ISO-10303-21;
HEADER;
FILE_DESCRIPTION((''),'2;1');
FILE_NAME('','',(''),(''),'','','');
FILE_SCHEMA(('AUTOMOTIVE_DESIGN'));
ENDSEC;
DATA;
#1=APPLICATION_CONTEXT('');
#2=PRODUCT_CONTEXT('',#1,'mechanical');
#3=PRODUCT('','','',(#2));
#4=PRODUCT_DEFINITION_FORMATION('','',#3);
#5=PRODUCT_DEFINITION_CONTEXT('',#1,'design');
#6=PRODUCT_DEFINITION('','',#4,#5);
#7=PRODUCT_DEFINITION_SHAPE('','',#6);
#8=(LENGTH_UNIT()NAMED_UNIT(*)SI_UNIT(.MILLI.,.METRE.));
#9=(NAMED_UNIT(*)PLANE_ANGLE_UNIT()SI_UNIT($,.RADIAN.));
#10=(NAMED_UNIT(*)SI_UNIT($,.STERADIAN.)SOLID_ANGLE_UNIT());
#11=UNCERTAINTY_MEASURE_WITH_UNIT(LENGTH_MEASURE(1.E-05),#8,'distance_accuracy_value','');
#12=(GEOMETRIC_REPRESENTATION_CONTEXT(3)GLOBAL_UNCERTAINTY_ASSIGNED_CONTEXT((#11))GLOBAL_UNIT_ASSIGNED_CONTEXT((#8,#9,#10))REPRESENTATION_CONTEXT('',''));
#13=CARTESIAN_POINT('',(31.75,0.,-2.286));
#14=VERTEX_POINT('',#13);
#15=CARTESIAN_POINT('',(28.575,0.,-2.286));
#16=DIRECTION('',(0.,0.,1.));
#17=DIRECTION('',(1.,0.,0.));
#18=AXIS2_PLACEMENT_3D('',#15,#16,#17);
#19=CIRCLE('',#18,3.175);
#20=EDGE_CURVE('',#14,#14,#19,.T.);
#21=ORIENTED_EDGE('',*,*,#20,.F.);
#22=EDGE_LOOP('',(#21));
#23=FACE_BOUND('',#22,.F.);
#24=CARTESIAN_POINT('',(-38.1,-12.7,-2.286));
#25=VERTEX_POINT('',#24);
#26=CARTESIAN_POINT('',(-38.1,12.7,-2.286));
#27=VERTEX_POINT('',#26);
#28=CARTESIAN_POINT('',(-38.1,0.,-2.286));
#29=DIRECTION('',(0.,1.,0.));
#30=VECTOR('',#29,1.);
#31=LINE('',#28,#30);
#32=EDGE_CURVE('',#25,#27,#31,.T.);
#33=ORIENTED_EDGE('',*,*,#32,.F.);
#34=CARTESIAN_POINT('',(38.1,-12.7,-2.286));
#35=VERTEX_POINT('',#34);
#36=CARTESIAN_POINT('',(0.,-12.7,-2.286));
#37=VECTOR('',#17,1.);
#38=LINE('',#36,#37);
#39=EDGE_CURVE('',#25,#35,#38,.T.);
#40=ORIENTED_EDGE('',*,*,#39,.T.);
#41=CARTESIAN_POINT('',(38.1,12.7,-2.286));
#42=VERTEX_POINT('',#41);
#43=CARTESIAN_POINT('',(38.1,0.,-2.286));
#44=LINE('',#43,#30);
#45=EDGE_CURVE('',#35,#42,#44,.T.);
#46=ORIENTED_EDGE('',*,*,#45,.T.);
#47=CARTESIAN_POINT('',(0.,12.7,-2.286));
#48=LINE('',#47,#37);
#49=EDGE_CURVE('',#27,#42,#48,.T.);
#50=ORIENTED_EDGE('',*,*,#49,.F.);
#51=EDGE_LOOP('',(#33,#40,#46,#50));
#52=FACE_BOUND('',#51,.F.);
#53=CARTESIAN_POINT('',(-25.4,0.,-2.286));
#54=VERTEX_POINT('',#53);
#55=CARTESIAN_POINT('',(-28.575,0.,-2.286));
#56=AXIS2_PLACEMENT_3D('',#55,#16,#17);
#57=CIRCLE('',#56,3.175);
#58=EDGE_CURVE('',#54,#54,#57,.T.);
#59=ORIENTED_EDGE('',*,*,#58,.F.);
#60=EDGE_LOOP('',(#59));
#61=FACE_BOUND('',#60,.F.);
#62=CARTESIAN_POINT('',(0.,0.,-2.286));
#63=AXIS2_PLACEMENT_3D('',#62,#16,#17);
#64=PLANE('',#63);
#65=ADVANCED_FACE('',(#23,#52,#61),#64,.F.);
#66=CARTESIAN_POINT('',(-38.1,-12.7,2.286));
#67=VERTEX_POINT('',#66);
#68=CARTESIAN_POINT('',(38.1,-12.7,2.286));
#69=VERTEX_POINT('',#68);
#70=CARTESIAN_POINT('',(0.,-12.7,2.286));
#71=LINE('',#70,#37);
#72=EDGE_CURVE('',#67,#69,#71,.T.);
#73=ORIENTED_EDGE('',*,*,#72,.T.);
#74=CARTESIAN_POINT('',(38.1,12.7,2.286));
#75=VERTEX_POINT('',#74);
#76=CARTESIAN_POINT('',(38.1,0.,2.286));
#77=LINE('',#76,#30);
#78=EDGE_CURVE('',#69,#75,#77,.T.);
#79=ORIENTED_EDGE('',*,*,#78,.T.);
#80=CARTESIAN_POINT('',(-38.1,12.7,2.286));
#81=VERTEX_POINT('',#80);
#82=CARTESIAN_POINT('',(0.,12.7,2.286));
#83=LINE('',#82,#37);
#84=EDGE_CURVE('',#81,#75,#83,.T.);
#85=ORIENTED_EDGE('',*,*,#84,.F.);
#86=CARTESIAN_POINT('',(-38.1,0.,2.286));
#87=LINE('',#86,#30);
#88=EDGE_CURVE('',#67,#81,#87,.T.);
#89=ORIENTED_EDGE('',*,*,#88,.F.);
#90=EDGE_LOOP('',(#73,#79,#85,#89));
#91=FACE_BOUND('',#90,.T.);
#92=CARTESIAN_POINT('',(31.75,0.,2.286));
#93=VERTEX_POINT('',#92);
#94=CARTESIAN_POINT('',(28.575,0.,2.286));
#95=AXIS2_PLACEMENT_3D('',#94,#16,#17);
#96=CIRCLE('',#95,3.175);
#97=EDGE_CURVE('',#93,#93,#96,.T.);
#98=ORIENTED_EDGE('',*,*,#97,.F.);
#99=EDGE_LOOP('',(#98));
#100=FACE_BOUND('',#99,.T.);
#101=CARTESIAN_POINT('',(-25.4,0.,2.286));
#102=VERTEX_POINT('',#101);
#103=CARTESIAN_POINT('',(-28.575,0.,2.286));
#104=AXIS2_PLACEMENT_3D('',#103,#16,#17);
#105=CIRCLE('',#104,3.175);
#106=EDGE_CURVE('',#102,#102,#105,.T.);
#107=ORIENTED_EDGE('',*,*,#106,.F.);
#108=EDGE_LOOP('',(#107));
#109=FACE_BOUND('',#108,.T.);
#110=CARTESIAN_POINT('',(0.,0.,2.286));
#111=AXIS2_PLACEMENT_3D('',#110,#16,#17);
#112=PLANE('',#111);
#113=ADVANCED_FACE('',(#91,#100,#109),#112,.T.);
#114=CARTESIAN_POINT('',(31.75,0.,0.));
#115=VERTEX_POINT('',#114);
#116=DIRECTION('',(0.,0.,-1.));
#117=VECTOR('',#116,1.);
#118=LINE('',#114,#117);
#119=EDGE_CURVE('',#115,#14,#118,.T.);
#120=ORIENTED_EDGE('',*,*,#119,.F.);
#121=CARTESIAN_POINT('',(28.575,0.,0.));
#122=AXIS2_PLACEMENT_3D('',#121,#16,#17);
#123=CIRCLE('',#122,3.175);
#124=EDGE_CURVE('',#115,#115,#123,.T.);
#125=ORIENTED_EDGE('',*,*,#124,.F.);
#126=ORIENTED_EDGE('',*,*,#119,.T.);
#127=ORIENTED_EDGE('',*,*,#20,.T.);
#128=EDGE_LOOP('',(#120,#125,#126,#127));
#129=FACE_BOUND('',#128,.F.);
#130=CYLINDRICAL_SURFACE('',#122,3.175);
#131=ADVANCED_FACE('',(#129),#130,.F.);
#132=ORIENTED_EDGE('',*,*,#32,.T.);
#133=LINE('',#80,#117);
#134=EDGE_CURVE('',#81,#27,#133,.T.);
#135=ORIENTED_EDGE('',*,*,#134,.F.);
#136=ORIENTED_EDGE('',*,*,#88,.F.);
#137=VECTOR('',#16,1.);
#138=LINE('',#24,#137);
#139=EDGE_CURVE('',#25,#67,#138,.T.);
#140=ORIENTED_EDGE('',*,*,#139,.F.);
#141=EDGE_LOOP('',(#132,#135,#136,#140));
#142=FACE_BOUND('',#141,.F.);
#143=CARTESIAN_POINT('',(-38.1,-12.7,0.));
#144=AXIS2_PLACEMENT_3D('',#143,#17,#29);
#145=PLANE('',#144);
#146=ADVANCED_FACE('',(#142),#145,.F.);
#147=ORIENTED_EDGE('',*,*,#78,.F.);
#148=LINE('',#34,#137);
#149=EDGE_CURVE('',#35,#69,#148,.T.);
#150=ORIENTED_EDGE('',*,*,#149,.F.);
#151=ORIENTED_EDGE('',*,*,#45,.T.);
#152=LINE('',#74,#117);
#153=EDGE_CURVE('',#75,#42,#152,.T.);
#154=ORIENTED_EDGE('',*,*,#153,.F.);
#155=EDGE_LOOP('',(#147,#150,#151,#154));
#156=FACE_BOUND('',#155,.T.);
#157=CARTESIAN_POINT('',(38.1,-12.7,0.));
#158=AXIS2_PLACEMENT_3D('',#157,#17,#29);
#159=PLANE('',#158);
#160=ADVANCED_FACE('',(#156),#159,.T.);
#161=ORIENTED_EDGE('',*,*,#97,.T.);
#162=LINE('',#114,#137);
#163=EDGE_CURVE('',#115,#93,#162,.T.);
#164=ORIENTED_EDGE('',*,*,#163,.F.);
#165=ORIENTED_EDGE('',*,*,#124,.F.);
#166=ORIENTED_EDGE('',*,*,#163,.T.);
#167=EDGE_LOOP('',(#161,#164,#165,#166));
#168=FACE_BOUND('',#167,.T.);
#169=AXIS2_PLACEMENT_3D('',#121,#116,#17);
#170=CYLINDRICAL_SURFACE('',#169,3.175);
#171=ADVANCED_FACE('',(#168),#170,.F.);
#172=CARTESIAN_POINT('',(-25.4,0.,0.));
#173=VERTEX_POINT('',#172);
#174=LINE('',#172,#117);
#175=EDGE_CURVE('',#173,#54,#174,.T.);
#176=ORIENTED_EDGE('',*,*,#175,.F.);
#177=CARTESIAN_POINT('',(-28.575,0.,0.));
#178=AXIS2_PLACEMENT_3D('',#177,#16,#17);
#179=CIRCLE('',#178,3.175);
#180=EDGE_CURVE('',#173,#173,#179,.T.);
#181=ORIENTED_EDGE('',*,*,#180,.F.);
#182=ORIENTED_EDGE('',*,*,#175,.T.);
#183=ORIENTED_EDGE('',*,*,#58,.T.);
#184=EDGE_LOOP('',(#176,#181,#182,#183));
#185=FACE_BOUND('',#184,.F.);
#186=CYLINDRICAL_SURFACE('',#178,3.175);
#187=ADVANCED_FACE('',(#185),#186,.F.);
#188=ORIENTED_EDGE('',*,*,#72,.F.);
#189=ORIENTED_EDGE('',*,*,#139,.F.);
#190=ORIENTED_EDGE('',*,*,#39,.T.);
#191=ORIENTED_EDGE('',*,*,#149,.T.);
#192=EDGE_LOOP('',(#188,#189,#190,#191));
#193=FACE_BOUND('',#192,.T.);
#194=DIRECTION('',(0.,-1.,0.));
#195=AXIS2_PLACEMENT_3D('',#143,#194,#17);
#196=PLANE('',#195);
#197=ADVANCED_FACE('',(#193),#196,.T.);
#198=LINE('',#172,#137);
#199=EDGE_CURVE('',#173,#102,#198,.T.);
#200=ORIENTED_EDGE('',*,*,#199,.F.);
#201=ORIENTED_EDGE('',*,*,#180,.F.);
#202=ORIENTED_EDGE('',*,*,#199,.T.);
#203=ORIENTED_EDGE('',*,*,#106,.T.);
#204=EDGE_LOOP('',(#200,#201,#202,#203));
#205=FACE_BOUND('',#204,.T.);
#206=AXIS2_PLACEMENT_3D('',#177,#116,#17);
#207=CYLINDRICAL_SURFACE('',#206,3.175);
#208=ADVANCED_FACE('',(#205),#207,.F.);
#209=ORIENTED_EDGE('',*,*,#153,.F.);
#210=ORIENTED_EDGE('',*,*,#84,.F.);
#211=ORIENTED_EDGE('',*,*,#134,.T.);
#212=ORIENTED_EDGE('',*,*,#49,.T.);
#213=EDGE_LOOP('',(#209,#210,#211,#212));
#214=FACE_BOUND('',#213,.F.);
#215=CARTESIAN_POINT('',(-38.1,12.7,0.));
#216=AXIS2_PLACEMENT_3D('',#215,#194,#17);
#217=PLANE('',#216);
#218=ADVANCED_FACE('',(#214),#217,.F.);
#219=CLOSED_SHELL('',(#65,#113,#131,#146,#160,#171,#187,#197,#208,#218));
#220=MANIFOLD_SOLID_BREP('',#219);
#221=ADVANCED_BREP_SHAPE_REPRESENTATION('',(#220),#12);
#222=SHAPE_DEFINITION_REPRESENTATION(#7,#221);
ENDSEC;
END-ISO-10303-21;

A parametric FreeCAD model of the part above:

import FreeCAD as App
import Part
import Sketcher
from FreeCAD import Vector
Q = App.Units.Quantity


def add_polygon(sketch, points):
    """Adds a closed chain of lines whose ends are joined by coincident constraints."""
    first, n = sketch.GeometryCount, len(points)
    for a, b in zip(points, points[1:] + points[:1]):
        sketch.addGeometry(Part.LineSegment(App.Vector(*a, 0), App.Vector(*b, 0)), False)
    for i in range(n):
        sketch.addConstraint(Sketcher.Constraint("Coincident", first + i, 2, first + (i + 1) % n, 1))

doc = App.newDocument("Part")
body = doc.addObject("PartDesign::Body", "Body")

# Sketch on XY plane
sketch1 = doc.addObject("Sketcher::SketchObject", "Sketch")
body.addObject(sketch1)
sketch1.AttachmentSupport = (doc.XY_Plane, [""])
sketch1.MapMode = "FlatFace"
add_polygon(sketch1, [(-38.1, 12.7), (-38.1, -12.7), (38.1, -12.7), (38.1, 12.7)])  # lines 0-3
sketch1.addGeometry(Part.Circle(Vector(-28.575, 0, 0), Vector(0, 0, 1), 3.175), False)  # 4
sketch1.addGeometry(Part.Circle(Vector(28.575, 0, 0), Vector(0, 0, 1), 3.175), False)  # 5
sketch1.addConstraint([
    Sketcher.Constraint("Vertical", 0),
    Sketcher.Constraint("Horizontal", 1),
    Sketcher.Constraint("Vertical", 2),
    Sketcher.Constraint("Horizontal", 3),
    Sketcher.Constraint("Equal", 4, 5),
    Sketcher.Constraint("Symmetric", 4, 3, 5, 3, -1, 1),
    Sketcher.Constraint("Symmetric", 0, 2, 2, 2, -1, 1),
    Sketcher.Constraint("PointOnObject", 4, 3, -1),
    Sketcher.Constraint("Diameter", 4, Q("0.25 in")),
    Sketcher.Constraint("DistanceX", 1, 1, 1, 2, Q("3 in")),
    Sketcher.Constraint("DistanceY", 0, 2, 0, 1, Q("1 in")),
    Sketcher.Constraint("DistanceX", 4, 3, 5, 3, Q("2.25 in")),
])
pad1 = doc.addObject("PartDesign::Pad", "Pad")
body.addObject(pad1)
pad1.Profile = sketch1
pad1.Type = "TwoLengths"
pad1.Length = Q("0.09 in")
pad1.Length2 = Q("0.09 in")

doc.recompute()
